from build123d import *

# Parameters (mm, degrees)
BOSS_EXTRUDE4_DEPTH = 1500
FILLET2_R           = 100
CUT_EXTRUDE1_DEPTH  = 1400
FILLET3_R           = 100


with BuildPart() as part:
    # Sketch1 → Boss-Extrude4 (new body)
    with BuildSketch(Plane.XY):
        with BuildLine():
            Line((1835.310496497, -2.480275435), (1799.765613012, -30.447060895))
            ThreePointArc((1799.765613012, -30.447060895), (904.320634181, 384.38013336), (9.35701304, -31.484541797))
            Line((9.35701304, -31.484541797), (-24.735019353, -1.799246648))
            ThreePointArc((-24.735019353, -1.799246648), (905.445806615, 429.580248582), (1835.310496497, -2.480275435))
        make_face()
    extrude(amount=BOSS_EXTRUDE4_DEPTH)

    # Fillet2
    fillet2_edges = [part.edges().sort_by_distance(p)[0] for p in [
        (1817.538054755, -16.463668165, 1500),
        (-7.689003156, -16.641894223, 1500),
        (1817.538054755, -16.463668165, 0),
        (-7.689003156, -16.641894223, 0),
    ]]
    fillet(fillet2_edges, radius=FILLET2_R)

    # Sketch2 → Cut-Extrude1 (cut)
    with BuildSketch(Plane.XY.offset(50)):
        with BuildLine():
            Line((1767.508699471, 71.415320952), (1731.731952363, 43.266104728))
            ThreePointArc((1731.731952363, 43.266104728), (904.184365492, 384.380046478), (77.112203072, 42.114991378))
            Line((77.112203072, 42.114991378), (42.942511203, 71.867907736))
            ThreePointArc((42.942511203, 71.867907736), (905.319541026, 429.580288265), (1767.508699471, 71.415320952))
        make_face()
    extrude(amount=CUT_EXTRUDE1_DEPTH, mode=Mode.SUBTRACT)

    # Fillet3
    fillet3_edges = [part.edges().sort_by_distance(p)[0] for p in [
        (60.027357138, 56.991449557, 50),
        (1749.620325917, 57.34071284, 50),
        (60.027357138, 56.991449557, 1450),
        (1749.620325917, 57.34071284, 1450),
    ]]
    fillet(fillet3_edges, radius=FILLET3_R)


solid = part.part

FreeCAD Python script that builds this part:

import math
import FreeCAD as App
import Part
import Sketcher


def edges_at(feature, points):
    """Names of the edges that pass closest to the given points."""
    edges = feature.Shape.Edges
    near = lambda p: min(range(len(edges)), key=lambda i: edges[i].distToShape(Part.Vertex(*p))[0])
    return sorted({f"Edge{near(p) + 1}" for p in points})

doc = App.newDocument("Part")
body = doc.addObject("PartDesign::Body", "Body")

# Sketch on XY plane
sketch1 = doc.addObject("Sketcher::SketchObject", "Sketch")
body.addObject(sketch1)
sketch1.AttachmentSupport = (doc.XY_Plane, [""])
sketch1.MapMode = "FlatFace"
sketch1.addGeometry([
    Part.LineSegment(App.Vector(1799.765613, -30.447061, 0), App.Vector(1835.310496, -2.480275, 0)),
    Part.ArcOfCircle(Part.Circle(App.Vector(905, -788.01967, 0), App.Vector(0, 0, 1), 1217.6), math.radians(40.177216), math.radians(139.780828)),
    Part.LineSegment(App.Vector(-24.735019, -1.799247, 0), App.Vector(9.357013, -31.484542, 0)),
    Part.ArcOfCircle(Part.Circle(App.Vector(905, -788.01967, 0), App.Vector(0, 0, 1), 1172.4), math.radians(40.253641), math.radians(139.812761)),
], False)
sketch1.addConstraint([
    Sketcher.Constraint("Coincident", 0, 2, 1, 1),
    Sketcher.Constraint("Coincident", 1, 2, 2, 1),
    Sketcher.Constraint("Coincident", 2, 2, 3, 2),
    Sketcher.Constraint("Coincident", 3, 1, 0, 1),
    Sketcher.Constraint("Coincident", 3, 3, 1, 3),
    Sketcher.Constraint("Radius", 1, 1217.6),
    Sketcher.Constraint("Radius", 3, 1172.4),
    Sketcher.Constraint("DistanceX", -1, 1, 1, 3, 905.0),
    Sketcher.Constraint("DistanceY", 1, 3, -1, 1, 788.01967),
    Sketcher.Constraint("DistanceY", 2, 2, -1, 1, 31.484542),
    Sketcher.Constraint("Distance", 0, 45.228087),
    Sketcher.Constraint("Distance", 2, 45.204905),
    Sketcher.Constraint("DistanceX", -1, 1, 0, 2, 1835.310496),
])
pad1 = doc.addObject("PartDesign::Pad", "Pad")
body.addObject(pad1)
pad1.Profile = sketch1
pad1.Length = 1500
doc.recompute()

fillet = doc.addObject("PartDesign::Fillet", "Fillet")
body.addObject(fillet)
fillet.Base = (pad1, edges_at(pad1, [
    (1817.538, -16.464, 1500),
    (-7.689, -16.642, 1500),
    (1817.538, -16.464, 0),
    (-7.689, -16.642, 0),
]))
fillet.Radius = 100

# Sketch on XY plane
sketch2 = doc.addObject("Sketcher::SketchObject", "Sketch001")
body.addObject(sketch2)
sketch2.AttachmentSupport = (doc.XY_Plane, [""])
sketch2.MapMode = "FlatFace"
sketch2.AttachmentOffset = App.Placement(App.Vector(0, 0, 50), App.Rotation())
sketch2.addGeometry([
    Part.LineSegment(App.Vector(1732, 43, 0), App.Vector(1768, 71, 0)),
    Part.ArcOfCircle(Part.Circle(App.Vector(905, -788, 0), App.Vector(0, 0, 1), 1218), math.radians(45), math.radians(135)),
    Part.LineSegment(App.Vector(43, 72, 0), App.Vector(77, 42, 0)),
    Part.ArcOfCircle(Part.Circle(App.Vector(905, -788, 0), App.Vector(0, 0, 1), 1172), math.radians(45), math.radians(135)),
], False)
sketch2.addConstraint([
    Sketcher.Constraint("Coincident", 0, 2, 1, 1),
    Sketcher.Constraint("Coincident", 1, 2, 2, 1),
    Sketcher.Constraint("Coincident", 2, 2, 3, 2),
    Sketcher.Constraint("Coincident", 3, 1, 0, 1),
    Sketcher.Constraint("Coincident", 3, 3, 1, 3),
    Sketcher.Constraint("Radius", 1, 1217.6),
    Sketcher.Constraint("Radius", 3, 1172.4),
    Sketcher.Constraint("DistanceX", -1, 1, 1, 3, 905.0),
    Sketcher.Constraint("DistanceX", -1, 1, 0, 2, 1767.508699),
    Sketcher.Constraint("Distance", 2, 45.307879),
    Sketcher.Constraint("DistanceY", 1, 3, -1, 1, 788.01967),
    Sketcher.Constraint("DistanceY", -1, 1, 2, 2, 42.114991),
    Sketcher.Constraint("Distance", 0, 45.523115),
])
pocket1 = doc.addObject("PartDesign::Pocket", "Pocket")
body.addObject(pocket1)
pocket1.Profile = sketch2
pocket1.Length = 1400
pocket1.Reversed = True
doc.recompute()

fillet2 = doc.addObject("PartDesign::Fillet", "Fillet001")
body.addObject(fillet2)
fillet2.Base = (pocket1, edges_at(pocket1, [
    (60.027, 56.991, 50),
    (1749.62, 57.341, 50),
    (60.027, 56.991, 1450),
    (1749.62, 57.341, 1450),
]))
fillet2.Radius = 100

doc.recompute()
